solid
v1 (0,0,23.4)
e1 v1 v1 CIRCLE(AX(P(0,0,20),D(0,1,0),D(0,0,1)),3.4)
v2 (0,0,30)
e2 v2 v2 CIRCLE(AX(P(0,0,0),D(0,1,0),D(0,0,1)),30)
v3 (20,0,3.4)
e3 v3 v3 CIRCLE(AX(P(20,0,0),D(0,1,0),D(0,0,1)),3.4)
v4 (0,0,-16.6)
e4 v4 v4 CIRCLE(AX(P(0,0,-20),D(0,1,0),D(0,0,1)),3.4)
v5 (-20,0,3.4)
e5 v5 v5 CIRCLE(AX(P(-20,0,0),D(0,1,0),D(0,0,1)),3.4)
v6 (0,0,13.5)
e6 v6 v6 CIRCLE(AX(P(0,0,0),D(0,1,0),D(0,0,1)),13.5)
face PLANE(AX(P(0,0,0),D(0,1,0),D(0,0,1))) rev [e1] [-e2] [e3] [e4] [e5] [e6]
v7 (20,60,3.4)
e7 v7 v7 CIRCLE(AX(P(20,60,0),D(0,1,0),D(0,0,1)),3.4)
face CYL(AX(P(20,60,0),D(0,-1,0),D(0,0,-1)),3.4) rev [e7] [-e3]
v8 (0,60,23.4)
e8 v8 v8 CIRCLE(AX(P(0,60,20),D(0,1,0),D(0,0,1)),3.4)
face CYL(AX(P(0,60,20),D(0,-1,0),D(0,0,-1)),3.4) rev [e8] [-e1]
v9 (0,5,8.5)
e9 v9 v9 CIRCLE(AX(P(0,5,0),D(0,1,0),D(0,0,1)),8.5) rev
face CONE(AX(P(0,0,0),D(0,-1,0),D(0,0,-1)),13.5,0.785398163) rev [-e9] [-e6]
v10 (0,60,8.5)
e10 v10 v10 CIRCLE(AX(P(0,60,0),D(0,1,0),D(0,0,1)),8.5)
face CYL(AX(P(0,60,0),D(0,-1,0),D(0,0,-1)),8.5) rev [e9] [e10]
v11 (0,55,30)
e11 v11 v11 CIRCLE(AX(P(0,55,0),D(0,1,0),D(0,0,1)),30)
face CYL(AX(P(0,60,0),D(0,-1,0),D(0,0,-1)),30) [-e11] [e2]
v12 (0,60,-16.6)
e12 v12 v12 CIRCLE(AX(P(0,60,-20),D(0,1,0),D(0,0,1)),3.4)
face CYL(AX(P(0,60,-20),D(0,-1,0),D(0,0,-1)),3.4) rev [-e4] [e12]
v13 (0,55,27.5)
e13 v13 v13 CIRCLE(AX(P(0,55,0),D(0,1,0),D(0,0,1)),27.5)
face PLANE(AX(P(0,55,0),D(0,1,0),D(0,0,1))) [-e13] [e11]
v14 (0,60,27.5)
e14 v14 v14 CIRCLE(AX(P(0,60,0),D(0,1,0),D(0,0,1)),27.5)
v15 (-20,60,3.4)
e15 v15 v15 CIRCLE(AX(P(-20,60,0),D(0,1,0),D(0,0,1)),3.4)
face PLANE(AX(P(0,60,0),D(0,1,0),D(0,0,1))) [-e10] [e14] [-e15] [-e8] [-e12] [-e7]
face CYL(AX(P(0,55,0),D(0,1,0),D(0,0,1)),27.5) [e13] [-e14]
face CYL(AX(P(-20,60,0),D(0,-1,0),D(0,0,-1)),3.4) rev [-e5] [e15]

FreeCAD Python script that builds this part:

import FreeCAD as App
import Part
import Sketcher


def edges_at(feature, points):
    """Names of the edges that pass closest to the given points."""
    edges = feature.Shape.Edges
    near = lambda p: min(range(len(edges)), key=lambda i: edges[i].distToShape(Part.Vertex(*p))[0])
    return sorted({f"Edge{near(p) + 1}" for p in points})

doc = App.newDocument("Part")
params = doc.addObject("Spreadsheet::Sheet", "Params")
for row, (alias, value) in enumerate([
    ("sketch1_diameter", "60 mm"),
    ("sketch1_diameter2", "17 mm"),
    ("sketch1_diameter3", "6.8 mm"),
    ("pad1_length", "60 mm"),
    ("sketch2_diameter", "60 mm"),
    ("sketch2_diameter2", "55 mm"),
    ("pocket1_length", "5 mm"),
    ("chamfer_size", "5 mm"),
], start=1):
    params.set(f"A{row}", alias)
    params.set(f"B{row}", "=" + value)
    params.setAlias(f"B{row}", alias)

body = doc.addObject("PartDesign::Body", "Body")

# Sketch on XZ plane
sketch1 = body.newObject("Sketcher::SketchObject", "Sketch")
sketch1.AttachmentSupport = (doc.getObject("XZ_Plane"), [""])
sketch1.MapMode = "FlatFace"
sketch1.addGeometry(Part.Circle(App.Vector(0, 0, 0), App.Vector(0, 0, 1), 30), False)
sketch1.addGeometry(Part.Circle(App.Vector(0, 20, 0), App.Vector(0, 0, 1), 3.4), False)
sketch1.addGeometry(Part.Circle(App.Vector(-20, 0, 0), App.Vector(0, 0, 1), 3.4), False)
sketch1.addGeometry(Part.Circle(App.Vector(0, 0, 0), App.Vector(0, 0, 1), 8.5), False)
sketch1.addGeometry(Part.Circle(App.Vector(20, 0, 0), App.Vector(0, 0, 1), 3.4), False)
sketch1.addGeometry(Part.Circle(App.Vector(0, -20, 0), App.Vector(0, 0, 1), 3.4), False)
sketch1.addConstraint(Sketcher.Constraint("Coincident", 0, 3, -1, 1))
sketch1.addConstraint(Sketcher.Constraint("Coincident", 3, 3, -1, 1))
sketch1.addConstraint(Sketcher.Constraint("Equal", 1, 2))
sketch1.addConstraint(Sketcher.Constraint("Equal", 2, 4))
sketch1.addConstraint(Sketcher.Constraint("Equal", 4, 5))
sketch1.addConstraint(Sketcher.Constraint("Symmetric", 2, 3, 4, 3, -1, 1))
sketch1.addConstraint(Sketcher.Constraint("Symmetric", 1, 3, 5, 3, -1, 1))
sketch1.addConstraint(Sketcher.Constraint("PointOnObject", 1, 3, -2))
sketch1.addConstraint(Sketcher.Constraint("PointOnObject", 2, 3, -1))
sketch1.addConstraint(Sketcher.Constraint("Diameter", 0, 60.0))
sketch1.addConstraint(Sketcher.Constraint("Diameter", 3, 17.0))
sketch1.addConstraint(Sketcher.Constraint("Diameter", 1, 6.8))
sketch1.addConstraint(Sketcher.Constraint("DistanceY", -1, 1, 1, 3, 20.0))
sketch1.addConstraint(Sketcher.Constraint("DistanceX", 2, 3, -1, 1, 20.0))
sketch1.setExpression("Constraints[9]", "Params.sketch1_diameter")
sketch1.setExpression("Constraints[10]", "Params.sketch1_diameter2")
sketch1.setExpression("Constraints[11]", "Params.sketch1_diameter3")
pad1 = body.newObject("PartDesign::Pad", "Pad")
pad1.Profile = sketch1
pad1.setExpression("Length", "Params.pad1_length")
pad1.Reversed = True

# Sketch on XZ plane
sketch2 = body.newObject("Sketcher::SketchObject", "Sketch001")
sketch2.AttachmentSupport = (doc.getObject("XZ_Plane"), [""])
sketch2.MapMode = "FlatFace"
sketch2.AttachmentOffset = App.Placement(App.Vector(0, 0, -60), App.Rotation())
sketch2.addGeometry(Part.Circle(App.Vector(0, 0, 0), App.Vector(0, 0, 1), 30), False)
sketch2.addGeometry(Part.Circle(App.Vector(0, 0, 0), App.Vector(0, 0, 1), 28), False)
sketch2.addConstraint(Sketcher.Constraint("Coincident", 0, 3, -1, 1))
sketch2.addConstraint(Sketcher.Constraint("Coincident", 1, 3, -1, 1))
sketch2.addConstraint(Sketcher.Constraint("Diameter", 0, 60.0))
sketch2.addConstraint(Sketcher.Constraint("Diameter", 1, 55.0))
sketch2.setExpression("Constraints[2]", "Params.sketch2_diameter")
sketch2.setExpression("Constraints[3]", "Params.sketch2_diameter2")
pocket1 = body.newObject("PartDesign::Pocket", "Pocket")
pocket1.Profile = sketch2
pocket1.setExpression("Length", "Params.pocket1_length")
pocket1.Reversed = True
doc.recompute()

chamfer = body.newObject("PartDesign::Chamfer", "Chamfer")
chamfer.Base = (pocket1, edges_at(pocket1, [(-8.5, 0, 0)]))
chamfer.setExpression("Size", "Params.chamfer_size")

doc.recompute()
